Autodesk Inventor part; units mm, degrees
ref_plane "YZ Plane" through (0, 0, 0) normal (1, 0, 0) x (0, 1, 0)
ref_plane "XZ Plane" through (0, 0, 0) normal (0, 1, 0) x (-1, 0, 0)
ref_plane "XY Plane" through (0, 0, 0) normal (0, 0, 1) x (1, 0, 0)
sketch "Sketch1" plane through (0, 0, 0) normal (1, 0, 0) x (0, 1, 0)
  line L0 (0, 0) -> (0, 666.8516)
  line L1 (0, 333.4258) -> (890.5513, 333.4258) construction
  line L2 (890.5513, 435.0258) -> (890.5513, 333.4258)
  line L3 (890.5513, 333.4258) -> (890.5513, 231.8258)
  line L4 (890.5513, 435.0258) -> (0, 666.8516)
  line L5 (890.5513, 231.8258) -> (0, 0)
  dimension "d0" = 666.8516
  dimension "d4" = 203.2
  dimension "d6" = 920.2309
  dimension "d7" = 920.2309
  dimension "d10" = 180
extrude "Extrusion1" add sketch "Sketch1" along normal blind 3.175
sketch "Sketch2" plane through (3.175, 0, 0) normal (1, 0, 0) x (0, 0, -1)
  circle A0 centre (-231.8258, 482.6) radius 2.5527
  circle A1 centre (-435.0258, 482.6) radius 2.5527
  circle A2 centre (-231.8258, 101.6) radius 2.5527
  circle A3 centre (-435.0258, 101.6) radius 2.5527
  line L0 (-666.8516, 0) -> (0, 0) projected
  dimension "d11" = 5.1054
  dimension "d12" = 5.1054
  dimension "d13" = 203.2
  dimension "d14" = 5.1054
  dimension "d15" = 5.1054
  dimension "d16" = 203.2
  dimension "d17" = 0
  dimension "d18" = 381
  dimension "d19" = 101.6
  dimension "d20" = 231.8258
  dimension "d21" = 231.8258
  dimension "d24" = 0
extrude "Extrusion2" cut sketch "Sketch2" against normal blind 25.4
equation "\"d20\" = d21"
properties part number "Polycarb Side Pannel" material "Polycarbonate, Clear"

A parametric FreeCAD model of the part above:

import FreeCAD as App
import Part
import Sketcher
Q = App.Units.Quantity

doc = App.newDocument("Part")
body = doc.addObject("PartDesign::Body", "Body")

sketch1 = body.newObject("Sketcher::SketchObject", "Sketch")
sketch1.AttachmentSupport = (doc.getObject("YZ_Plane"), [""])
sketch1.MapMode = "FlatFace"
sketch1.addGeometry(Part.LineSegment(App.Vector(0, 667, 0), App.Vector(0, 0, 0)), False)
sketch1.addGeometry(Part.LineSegment(App.Vector(0, 0, 0), App.Vector(891, 232, 0)), False)
sketch1.addGeometry(Part.LineSegment(App.Vector(891, 232, 0), App.Vector(891, 435, 0)), False)
sketch1.addGeometry(Part.LineSegment(App.Vector(891, 435, 0), App.Vector(0, 667, 0)), False)
sketch1.addConstraint(Sketcher.Constraint("Coincident", 0, 2, 1, 1))
sketch1.addConstraint(Sketcher.Constraint("Coincident", 1, 2, 2, 1))
sketch1.addConstraint(Sketcher.Constraint("Coincident", 2, 2, 3, 1))
sketch1.addConstraint(Sketcher.Constraint("Coincident", 3, 2, 0, 1))
sketch1.addConstraint(Sketcher.Constraint("Vertical", 0))
sketch1.addConstraint(Sketcher.Constraint("Vertical", 2))
sketch1.addConstraint(Sketcher.Constraint("Coincident", 0, 2, -1, 1))
sketch1.addConstraint(Sketcher.Constraint("Equal", 1, 3))
sketch1.addConstraint(Sketcher.Constraint("DistanceY", 2, 1, 2, 2, Q("8 in")))
sketch1.addConstraint(Sketcher.Constraint("DistanceY", 0, 2, 0, 1, Q("26.254 in")))
sketch1.addConstraint(Sketcher.Constraint("Distance", 1, Q("920.2309 mm")))
pad1 = body.newObject("PartDesign::Pad", "Pad")
pad1.Profile = sketch1
pad1.Length = Q("0.125 in")

sketch2 = body.newObject("Sketcher::SketchObject", "Sketch001")
sketch2.AttachmentSupport = (doc.getObject("YZ_Plane"), [""])
sketch2.MapMode = "FlatFace"
sketch2.AttachmentOffset = App.Placement(App.Vector(0, 0, 0.125 * 25.4), App.Rotation())
sketch2.addGeometry(Part.Circle(App.Vector(482.6, 231.8, 0), App.Vector(0, 0, 1), 2.6), False)
sketch2.addGeometry(Part.Circle(App.Vector(482.6, 435, 0), App.Vector(0, 0, 1), 2.6), False)
sketch2.addGeometry(Part.Circle(App.Vector(101.6, 231.8, 0), App.Vector(0, 0, 1), 2.6), False)
sketch2.addGeometry(Part.Circle(App.Vector(101.6, 435, 0), App.Vector(0, 0, 1), 2.6), False)
sketch2.addConstraint(Sketcher.Constraint("Equal", 0, 1))
sketch2.addConstraint(Sketcher.Constraint("Equal", 1, 2))
sketch2.addConstraint(Sketcher.Constraint("Equal", 2, 3))
sketch2.addConstraint(Sketcher.Constraint("Horizontal", 0, 3, 2, 3))
sketch2.addConstraint(Sketcher.Constraint("Horizontal", 1, 3, 3, 3))
sketch2.addConstraint(Sketcher.Constraint("Vertical", 0, 3, 1, 3))
sketch2.addConstraint(Sketcher.Constraint("Vertical", 2, 3, 3, 3))
sketch2.addConstraint(Sketcher.Constraint("Diameter", 0, Q("0.201 in")))
sketch2.addConstraint(Sketcher.Constraint("DistanceX", -1, 1, 2, 3, Q("4 in")))
sketch2.addConstraint(Sketcher.Constraint("DistanceY", 0, 3, 1, 3, Q("8 in")))
sketch2.addConstraint(Sketcher.Constraint("DistanceX", 2, 3, 0, 3, Q("15 in")))
sketch2.addConstraint(Sketcher.Constraint("DistanceY", -1, 1, 0, 3, Q("9.127 in")))
pocket1 = body.newObject("PartDesign::Pocket", "Pocket")
pocket1.Profile = sketch2
pocket1.Length = Q("1 in")

doc.recompute()
